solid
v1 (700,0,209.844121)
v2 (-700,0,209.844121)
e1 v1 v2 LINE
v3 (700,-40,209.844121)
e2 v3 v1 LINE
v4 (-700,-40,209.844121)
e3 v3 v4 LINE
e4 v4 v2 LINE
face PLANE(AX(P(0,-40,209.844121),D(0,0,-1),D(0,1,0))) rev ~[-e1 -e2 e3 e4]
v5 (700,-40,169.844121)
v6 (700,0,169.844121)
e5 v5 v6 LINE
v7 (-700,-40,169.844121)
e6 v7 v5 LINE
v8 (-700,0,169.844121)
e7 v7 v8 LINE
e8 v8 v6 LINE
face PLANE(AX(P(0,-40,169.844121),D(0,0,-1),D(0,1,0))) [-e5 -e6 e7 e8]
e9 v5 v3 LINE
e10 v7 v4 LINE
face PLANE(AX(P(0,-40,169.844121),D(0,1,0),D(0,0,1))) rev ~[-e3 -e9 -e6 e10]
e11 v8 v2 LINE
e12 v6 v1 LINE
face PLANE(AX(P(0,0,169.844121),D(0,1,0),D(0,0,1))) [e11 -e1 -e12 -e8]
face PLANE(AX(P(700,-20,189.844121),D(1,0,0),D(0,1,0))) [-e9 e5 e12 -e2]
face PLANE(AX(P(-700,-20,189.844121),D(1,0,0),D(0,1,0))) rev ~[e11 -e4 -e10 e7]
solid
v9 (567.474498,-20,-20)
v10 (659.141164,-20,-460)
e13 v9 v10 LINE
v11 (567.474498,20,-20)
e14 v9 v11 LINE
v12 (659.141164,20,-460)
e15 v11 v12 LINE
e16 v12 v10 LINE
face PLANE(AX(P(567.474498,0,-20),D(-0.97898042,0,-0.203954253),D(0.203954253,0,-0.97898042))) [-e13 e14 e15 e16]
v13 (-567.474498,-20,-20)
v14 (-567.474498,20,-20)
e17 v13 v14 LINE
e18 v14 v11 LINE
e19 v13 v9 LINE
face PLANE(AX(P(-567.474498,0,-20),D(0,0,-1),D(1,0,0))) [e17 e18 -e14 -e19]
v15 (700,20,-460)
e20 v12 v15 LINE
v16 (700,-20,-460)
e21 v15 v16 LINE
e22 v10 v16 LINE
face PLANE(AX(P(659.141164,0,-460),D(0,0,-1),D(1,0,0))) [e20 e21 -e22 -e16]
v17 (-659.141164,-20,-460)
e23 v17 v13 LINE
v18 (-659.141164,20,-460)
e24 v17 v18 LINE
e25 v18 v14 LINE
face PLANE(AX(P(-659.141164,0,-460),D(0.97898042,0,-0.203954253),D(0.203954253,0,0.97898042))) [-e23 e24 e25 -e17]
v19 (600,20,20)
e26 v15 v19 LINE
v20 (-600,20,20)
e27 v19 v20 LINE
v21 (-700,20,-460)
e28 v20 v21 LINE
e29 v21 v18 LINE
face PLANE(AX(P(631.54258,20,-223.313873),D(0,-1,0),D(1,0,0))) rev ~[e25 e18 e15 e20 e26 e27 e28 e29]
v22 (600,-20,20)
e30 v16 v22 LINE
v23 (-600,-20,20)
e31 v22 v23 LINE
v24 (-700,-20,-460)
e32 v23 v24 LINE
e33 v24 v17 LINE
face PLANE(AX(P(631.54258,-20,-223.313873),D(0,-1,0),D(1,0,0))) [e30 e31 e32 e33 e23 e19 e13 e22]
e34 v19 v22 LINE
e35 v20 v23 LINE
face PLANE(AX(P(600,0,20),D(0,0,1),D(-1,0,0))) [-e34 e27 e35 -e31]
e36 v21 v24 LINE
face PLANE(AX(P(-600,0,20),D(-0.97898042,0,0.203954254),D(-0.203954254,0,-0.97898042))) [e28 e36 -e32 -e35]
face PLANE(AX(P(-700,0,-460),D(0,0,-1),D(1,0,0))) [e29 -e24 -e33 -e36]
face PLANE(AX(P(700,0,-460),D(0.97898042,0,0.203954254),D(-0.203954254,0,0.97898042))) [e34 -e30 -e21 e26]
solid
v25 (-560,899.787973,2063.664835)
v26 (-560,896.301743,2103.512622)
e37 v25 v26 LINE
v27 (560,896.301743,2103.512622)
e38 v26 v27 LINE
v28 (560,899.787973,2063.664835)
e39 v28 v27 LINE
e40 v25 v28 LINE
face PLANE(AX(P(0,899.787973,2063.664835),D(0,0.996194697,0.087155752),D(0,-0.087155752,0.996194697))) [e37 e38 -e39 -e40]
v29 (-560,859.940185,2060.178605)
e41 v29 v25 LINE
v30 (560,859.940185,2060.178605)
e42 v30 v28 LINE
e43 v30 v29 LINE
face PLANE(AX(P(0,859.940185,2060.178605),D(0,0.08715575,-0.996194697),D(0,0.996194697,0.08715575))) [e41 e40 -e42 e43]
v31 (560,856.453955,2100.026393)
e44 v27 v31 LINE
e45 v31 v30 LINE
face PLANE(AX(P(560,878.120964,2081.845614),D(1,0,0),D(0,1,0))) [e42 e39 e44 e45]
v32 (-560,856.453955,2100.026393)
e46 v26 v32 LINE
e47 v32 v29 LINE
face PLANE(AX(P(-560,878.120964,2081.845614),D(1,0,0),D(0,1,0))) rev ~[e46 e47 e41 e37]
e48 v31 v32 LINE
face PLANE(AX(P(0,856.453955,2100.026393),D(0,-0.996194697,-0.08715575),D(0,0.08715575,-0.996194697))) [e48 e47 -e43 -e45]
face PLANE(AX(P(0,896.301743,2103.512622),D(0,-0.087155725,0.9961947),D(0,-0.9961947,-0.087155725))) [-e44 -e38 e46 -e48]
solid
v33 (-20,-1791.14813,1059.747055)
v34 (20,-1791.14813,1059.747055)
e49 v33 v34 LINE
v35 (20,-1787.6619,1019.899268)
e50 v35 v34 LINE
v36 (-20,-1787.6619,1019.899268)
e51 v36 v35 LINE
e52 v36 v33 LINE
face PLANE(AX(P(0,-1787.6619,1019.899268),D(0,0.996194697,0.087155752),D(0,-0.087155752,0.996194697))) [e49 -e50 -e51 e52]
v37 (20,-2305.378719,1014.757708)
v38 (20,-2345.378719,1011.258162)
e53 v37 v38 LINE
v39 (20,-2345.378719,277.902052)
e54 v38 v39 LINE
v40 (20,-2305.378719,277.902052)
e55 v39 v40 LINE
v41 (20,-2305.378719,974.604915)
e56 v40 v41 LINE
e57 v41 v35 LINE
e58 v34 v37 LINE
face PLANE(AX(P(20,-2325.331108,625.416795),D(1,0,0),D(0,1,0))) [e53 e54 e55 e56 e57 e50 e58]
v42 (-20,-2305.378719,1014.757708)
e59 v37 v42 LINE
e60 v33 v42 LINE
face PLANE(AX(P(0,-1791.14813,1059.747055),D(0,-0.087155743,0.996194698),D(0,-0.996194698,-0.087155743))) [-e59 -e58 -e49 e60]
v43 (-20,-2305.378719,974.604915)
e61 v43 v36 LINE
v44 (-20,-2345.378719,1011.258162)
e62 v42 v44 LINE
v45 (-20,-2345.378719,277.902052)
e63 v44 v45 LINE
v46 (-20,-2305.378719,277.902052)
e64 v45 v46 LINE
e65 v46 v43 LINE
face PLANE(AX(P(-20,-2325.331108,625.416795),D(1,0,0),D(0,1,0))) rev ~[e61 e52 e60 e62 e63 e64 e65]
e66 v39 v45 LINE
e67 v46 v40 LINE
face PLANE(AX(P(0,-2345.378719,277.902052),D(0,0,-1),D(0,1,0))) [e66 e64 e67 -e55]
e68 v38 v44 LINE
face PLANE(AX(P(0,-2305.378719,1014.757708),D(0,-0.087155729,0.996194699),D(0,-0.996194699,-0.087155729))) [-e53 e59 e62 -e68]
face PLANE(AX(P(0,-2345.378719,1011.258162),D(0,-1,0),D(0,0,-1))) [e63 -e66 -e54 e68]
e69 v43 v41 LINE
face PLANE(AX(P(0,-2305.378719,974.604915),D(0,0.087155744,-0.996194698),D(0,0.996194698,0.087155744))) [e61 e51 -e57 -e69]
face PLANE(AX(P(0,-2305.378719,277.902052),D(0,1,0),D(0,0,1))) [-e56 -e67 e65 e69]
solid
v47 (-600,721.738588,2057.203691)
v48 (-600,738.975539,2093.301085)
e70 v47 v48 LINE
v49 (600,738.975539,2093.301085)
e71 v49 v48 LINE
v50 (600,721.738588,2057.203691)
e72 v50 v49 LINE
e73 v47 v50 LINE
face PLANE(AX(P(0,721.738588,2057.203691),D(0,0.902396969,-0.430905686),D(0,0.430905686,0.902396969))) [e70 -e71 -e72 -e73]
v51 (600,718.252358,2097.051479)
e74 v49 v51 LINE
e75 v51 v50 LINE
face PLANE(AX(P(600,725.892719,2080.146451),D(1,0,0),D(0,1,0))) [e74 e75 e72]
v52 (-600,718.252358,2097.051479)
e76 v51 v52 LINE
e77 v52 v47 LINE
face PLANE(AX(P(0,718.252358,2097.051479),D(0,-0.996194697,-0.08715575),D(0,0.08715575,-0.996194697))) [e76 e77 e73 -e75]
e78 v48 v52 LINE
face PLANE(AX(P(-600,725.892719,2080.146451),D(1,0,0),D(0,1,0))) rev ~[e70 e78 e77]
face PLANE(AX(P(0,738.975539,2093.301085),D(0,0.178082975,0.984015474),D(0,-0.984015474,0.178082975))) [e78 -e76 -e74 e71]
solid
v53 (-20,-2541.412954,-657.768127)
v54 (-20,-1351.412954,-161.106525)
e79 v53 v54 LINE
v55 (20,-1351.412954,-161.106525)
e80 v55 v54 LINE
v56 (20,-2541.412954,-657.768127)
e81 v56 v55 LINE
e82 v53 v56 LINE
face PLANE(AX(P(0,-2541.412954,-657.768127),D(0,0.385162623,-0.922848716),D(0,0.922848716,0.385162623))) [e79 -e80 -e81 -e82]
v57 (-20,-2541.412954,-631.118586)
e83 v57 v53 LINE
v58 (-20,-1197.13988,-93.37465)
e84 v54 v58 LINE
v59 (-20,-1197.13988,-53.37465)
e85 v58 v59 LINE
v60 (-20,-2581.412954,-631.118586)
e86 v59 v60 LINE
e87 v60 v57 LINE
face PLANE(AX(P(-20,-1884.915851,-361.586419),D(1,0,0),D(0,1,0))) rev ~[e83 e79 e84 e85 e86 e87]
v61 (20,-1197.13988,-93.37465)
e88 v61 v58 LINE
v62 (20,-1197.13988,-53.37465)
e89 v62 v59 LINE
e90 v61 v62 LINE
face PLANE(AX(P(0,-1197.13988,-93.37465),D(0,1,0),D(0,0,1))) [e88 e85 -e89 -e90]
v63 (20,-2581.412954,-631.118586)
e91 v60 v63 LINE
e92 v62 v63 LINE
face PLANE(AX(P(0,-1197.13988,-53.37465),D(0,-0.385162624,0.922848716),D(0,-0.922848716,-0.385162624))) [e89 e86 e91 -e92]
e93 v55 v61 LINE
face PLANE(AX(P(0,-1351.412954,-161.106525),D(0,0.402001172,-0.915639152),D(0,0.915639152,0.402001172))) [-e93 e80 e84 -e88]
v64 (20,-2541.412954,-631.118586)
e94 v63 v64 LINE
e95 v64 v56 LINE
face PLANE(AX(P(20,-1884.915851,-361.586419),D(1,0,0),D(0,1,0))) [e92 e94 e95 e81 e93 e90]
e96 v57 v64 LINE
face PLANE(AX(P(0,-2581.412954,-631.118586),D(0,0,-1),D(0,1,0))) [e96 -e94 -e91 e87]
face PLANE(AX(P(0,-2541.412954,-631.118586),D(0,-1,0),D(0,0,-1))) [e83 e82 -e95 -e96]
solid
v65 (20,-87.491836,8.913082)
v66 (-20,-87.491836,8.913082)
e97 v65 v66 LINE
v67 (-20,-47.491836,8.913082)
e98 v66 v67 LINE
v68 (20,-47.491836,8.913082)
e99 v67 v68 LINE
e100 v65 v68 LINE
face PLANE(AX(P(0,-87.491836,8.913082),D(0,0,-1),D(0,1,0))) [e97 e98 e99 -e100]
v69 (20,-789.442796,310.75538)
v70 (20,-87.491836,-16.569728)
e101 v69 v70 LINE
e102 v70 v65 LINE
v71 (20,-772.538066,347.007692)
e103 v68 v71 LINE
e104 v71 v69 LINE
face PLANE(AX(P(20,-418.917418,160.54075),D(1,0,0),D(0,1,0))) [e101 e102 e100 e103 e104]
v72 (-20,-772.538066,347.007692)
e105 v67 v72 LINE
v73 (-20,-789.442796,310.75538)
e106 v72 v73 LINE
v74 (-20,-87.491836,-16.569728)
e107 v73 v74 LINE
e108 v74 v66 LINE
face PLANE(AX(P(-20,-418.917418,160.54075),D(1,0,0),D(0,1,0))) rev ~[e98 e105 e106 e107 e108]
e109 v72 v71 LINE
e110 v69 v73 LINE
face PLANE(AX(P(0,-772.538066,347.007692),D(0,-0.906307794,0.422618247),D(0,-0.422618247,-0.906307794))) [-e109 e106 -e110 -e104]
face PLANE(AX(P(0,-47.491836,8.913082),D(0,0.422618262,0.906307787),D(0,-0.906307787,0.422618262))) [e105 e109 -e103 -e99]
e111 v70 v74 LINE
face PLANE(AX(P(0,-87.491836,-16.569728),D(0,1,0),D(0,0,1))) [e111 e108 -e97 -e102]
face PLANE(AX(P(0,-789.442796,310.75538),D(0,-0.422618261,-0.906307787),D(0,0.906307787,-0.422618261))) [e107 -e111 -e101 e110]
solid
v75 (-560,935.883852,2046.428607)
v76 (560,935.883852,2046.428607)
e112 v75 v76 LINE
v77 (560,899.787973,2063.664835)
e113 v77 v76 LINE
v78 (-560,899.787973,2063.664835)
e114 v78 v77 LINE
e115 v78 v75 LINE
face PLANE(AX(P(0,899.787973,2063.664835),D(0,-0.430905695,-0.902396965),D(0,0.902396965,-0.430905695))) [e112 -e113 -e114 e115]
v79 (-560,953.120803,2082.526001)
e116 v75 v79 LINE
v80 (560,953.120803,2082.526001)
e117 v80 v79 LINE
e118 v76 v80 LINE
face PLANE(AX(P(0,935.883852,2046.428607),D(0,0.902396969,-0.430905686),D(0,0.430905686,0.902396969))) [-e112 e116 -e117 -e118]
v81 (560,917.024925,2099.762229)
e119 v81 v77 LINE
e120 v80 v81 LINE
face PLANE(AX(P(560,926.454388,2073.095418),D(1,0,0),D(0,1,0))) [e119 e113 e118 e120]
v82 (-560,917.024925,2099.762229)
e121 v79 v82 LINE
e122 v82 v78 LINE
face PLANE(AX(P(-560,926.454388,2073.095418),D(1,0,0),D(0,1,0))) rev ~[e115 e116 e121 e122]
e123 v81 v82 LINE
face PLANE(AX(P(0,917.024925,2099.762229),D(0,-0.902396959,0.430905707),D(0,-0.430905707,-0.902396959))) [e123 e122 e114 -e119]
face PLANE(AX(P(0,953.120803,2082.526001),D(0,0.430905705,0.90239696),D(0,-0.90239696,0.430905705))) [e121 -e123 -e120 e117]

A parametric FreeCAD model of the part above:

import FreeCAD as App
import Part
import Sketcher
Q = App.Units.Quantity


def add_polygon(sketch, points):
    """Adds a closed chain of lines whose ends are joined by coincident constraints."""
    first, n = sketch.GeometryCount, len(points)
    for a, b in zip(points, points[1:] + points[:1]):
        sketch.addGeometry(Part.LineSegment(App.Vector(*a, 0), App.Vector(*b, 0)), False)
    for i in range(n):
        sketch.addConstraint(Sketcher.Constraint("Coincident", first + i, 2, first + (i + 1) % n, 1))

doc = App.newDocument("Part")
body = doc.addObject("PartDesign::Body", "Body")

# Sketch on XZ plane
sketch1 = doc.addObject("Sketcher::SketchObject", "Sketch")
body.addObject(sketch1)
sketch1.AttachmentSupport = (doc.XZ_Plane, [""])
sketch1.MapMode = "FlatFace"
add_polygon(sketch1, [(567, -20), (659, -460), (700, -460), (600, 20), (-600, 20), (-700, -460), (-659, -460), (-567, -20)])  # lines 0-7
sketch1.addConstraint([
    Sketcher.Constraint("Horizontal", 1),
    Sketcher.Constraint("Horizontal", 3),
    Sketcher.Constraint("Horizontal", 5),
    Sketcher.Constraint("Horizontal", 7),
    Sketcher.Constraint("Symmetric", 1, 2, 4, 2, -2),
    Sketcher.Constraint("Parallel", 0, 2),
    Sketcher.Constraint("Parallel", 4, 6),
    Sketcher.Constraint("Equal", 1, 5),
    Sketcher.Constraint("Equal", 2, 4),
    Sketcher.Constraint("DistanceX", 3, 2, 3, 1, Q("1200 mm")),
    Sketcher.Constraint("DistanceY", 0, 2, -1, 1, Q("460 mm")),
    Sketcher.Constraint("DistanceX", -1, 1, 1, 2, Q("700 mm")),
    Sketcher.Constraint("DistanceY", -1, 1, 2, 2, Q("20 mm")),
    Sketcher.Constraint("DistanceY", 6, 2, -1, 1, Q("20 mm")),
    Sketcher.Constraint("DistanceX", 6, 2, -1, 1, Q("567.474498 mm")),
])
pad1 = doc.addObject("PartDesign::Pad", "Pad")
body.addObject(pad1)
pad1.Profile = sketch1
pad1.Length = 40
pad1.Midplane = True
body2 = doc.addObject("PartDesign::Body", "Body001")

# Sketch on YZ plane
sketch2 = doc.addObject("Sketcher::SketchObject", "Sketch001")
body2.addObject(sketch2)
sketch2.AttachmentSupport = (doc.getObject("YZ_Plane001"), [""])
sketch2.MapMode = "FlatFace"
add_polygon(sketch2, [(-87, 9), (-47, 9), (-773, 347), (-789, 311), (-87, -17)])  # lines 0-4
sketch2.addConstraint([
    Sketcher.Constraint("Horizontal", 0),
    Sketcher.Constraint("Vertical", 4),
    Sketcher.Constraint("Perpendicular", 1, 2),
    Sketcher.Constraint("Perpendicular", 2, 3),
    Sketcher.Constraint("DistanceX", 0, 1, 0, 2, Q("40 mm")),
    Sketcher.Constraint("Angle", 1, Q("155 deg")),
    Sketcher.Constraint("Distance", 1, Q("800.000001 mm")),
    Sketcher.Constraint("Distance", 2, Q("40 mm")),
    Sketcher.Constraint("DistanceY", -1, 1, 0, 2, Q("8.913082 mm")),
    Sketcher.Constraint("DistanceX", 0, 2, -1, 1, Q("47.491836 mm")),
])
pad2 = doc.addObject("PartDesign::Pad", "Pad001")
body2.addObject(pad2)
pad2.Profile = sketch2
pad2.Length = 40
pad2.Midplane = True
body3 = doc.addObject("PartDesign::Body", "Body002")

# Sketch on YZ plane
sketch3 = doc.addObject("Sketcher::SketchObject", "Sketch002")
body3.addObject(sketch3)
sketch3.AttachmentSupport = (doc.getObject("YZ_Plane002"), [""])
sketch3.MapMode = "FlatFace"
add_polygon(sketch3, [(718, 2097), (722, 2057), (739, 2093)])  # lines 0-2
sketch3.addConstraint([
    Sketcher.Constraint("Angle", 0, Q("-85 deg")),
    Sketcher.Constraint("Distance", 0, Q("40 mm")),
    Sketcher.Constraint("Distance", 1, Q("40.001679 mm")),
    Sketcher.Constraint("DistanceX", -1, 1, 0, 2, Q("721.738588 mm")),
    Sketcher.Constraint("DistanceY", -1, 1, 0, 2, Q("2057.203691 mm")),
    Sketcher.Constraint("DistanceX", -1, 1, 1, 2, Q("738.975539 mm")),
])
pad3 = doc.addObject("PartDesign::Pad", "Pad002")
body3.addObject(pad3)
pad3.Profile = sketch3
pad3.Length = 1200
pad3.Midplane = True
body4 = doc.addObject("PartDesign::Body", "Body003")
body4.AllowCompound = True

# Sketch on YZ plane
sketch4 = doc.addObject("Sketcher::SketchObject", "Sketch003")
body4.addObject(sketch4)
sketch4.AttachmentSupport = (doc.getObject("YZ_Plane003"), [""])
sketch4.MapMode = "FlatFace"
add_polygon(sketch4, [(860, 2060), (900, 2064), (896, 2104), (856, 2100)])  # lines 0-3
add_polygon(sketch4, [(917, 2100), (900, 2064), (936, 2046), (953, 2083)])  # lines 4-7
sketch4.addConstraint([
    Sketcher.Constraint("Coincident", 4, 2, 0, 2),
    Sketcher.Constraint("Perpendicular", 0, 1),
    Sketcher.Constraint("Perpendicular", 1, 2),
    Sketcher.Constraint("Perpendicular", 2, 3),
    Sketcher.Constraint("Perpendicular", 4, 5),
    Sketcher.Constraint("Perpendicular", 5, 6),
    Sketcher.Constraint("Perpendicular", 6, 7),
    Sketcher.Constraint("Equal", 0, 1),
    Sketcher.Constraint("Equal", 3, 5),
    Sketcher.Constraint("Angle", 0, Q("5 deg")),
    Sketcher.Constraint("Distance", 0, Q("40 mm")),
    Sketcher.Constraint("DistanceY", 5, 2, 3, 2, Q("13.749998 mm")),
    Sketcher.Constraint("DistanceY", -1, 1, 6, 2, Q("2082.526001 mm")),
    Sketcher.Constraint("Distance", 4, Q("40.00168 mm")),
    Sketcher.Constraint("DistanceX", -1, 1, 5, 2, Q("935.883852 mm")),
])
pad4 = doc.addObject("PartDesign::Pad", "Pad003")
body4.addObject(pad4)
pad4.Profile = sketch4
pad4.Length = 1120
pad4.Midplane = True
body5 = doc.addObject("PartDesign::Body", "Body004")

# Sketch on YZ plane
sketch5 = doc.addObject("Sketcher::SketchObject", "Sketch004")
body5.addObject(sketch5)
sketch5.AttachmentSupport = (doc.getObject("YZ_Plane004"), [""])
sketch5.MapMode = "FlatFace"
add_polygon(sketch5, [(-2345, 278), (-2305, 278), (-2305, 975), (-1788, 1020), (-1791, 1060), (-2305, 1015), (-2345, 1011)])  # lines 0-6
sketch5.addConstraint([
    Sketcher.Constraint("Horizontal", 0),
    Sketcher.Constraint("Vertical", 1),
    Sketcher.Constraint("Vertical", 6),
    Sketcher.Constraint("Perpendicular", 2, 3),
    Sketcher.Constraint("Perpendicular", 3, 4),
    Sketcher.Constraint("Parallel", 4, 5),
    Sketcher.Constraint("Vertical", 1, 2, 4, 2),
    Sketcher.Constraint("DistanceX", 0, 1, 0, 2, Q("40 mm")),
    Sketcher.Constraint("Angle", 2, Q("5 deg")),
    Sketcher.Constraint("Distance", 3, Q("39.999999 mm")),
    Sketcher.Constraint("DistanceY", 6, 2, 6, 1, Q("733.35611 mm")),
    Sketcher.Constraint("DistanceX", 2, 2, -1, 1, Q("1787.6619 mm")),
    Sketcher.Constraint("DistanceX", 0, 2, -1, 1, Q("2305.378719 mm")),
    Sketcher.Constraint("DistanceY", -1, 1, 2, 2, Q("1019.899268 mm")),
])
pad5 = doc.addObject("PartDesign::Pad", "Pad004")
body5.addObject(pad5)
pad5.Profile = sketch5
pad5.Length = 40
pad5.Midplane = True
body6 = doc.addObject("PartDesign::Body", "Body005")

# Sketch on YZ plane
sketch6 = doc.addObject("Sketcher::SketchObject", "Sketch005")
body6.addObject(sketch6)
sketch6.AttachmentSupport = (doc.getObject("YZ_Plane005"), [""])
sketch6.MapMode = "FlatFace"
add_polygon(sketch6, [(-40, 210), (-40, 170), (0, 170), (0, 210)])  # lines 0-3
sketch6.addConstraint([
    Sketcher.Constraint("Vertical", 0),
    Sketcher.Constraint("Horizontal", 1),
    Sketcher.Constraint("Vertical", 2),
    Sketcher.Constraint("Horizontal", 3),
    Sketcher.Constraint("PointOnObject", 1, 2, -2),
    Sketcher.Constraint("Equal", 3, 0),
    Sketcher.Constraint("DistanceX", 1, 1, 1, 2, Q("40 mm")),
    Sketcher.Constraint("DistanceY", -1, 1, 0, 2, Q("169.844121 mm")),
])
pad6 = doc.addObject("PartDesign::Pad", "Pad005")
body6.addObject(pad6)
pad6.Profile = sketch6
pad6.Length = 1400
pad6.Midplane = True
body7 = doc.addObject("PartDesign::Body", "Body006")

# Sketch on YZ plane
sketch7 = doc.addObject("Sketcher::SketchObject", "Sketch006")
body7.addObject(sketch7)
sketch7.AttachmentSupport = (doc.getObject("YZ_Plane006"), [""])
sketch7.MapMode = "FlatFace"
add_polygon(sketch7, [(-1197, -53), (-2581, -631), (-2541, -631), (-2541, -658), (-1351, -161), (-1197, -93)])  # lines 0-5
sketch7.addConstraint([
    Sketcher.Constraint("Horizontal", 1),
    Sketcher.Constraint("Vertical", 2),
    Sketcher.Constraint("Vertical", 5),
    Sketcher.Constraint("Parallel", 0, 3),
    Sketcher.Constraint("Equal", 1, 5),
    Sketcher.Constraint("DistanceX", 1, 1, 1, 2, Q("40 mm")),
    Sketcher.Constraint("Distance", 0, Q("1500 mm")),
    Sketcher.Constraint("DistanceX", 1, 2, 3, 2, Q("1190 mm")),
    Sketcher.Constraint("DistanceY", 2, 2, 2, 1, Q("26.649541 mm")),
    Sketcher.Constraint("DistanceY", 2, 2, 3, 2, Q("496.661602 mm")),
    Sketcher.Constraint("DistanceX", 4, 2, -1, 1, Q("1197.13988 mm")),
    Sketcher.Constraint("DistanceY", 4, 2, -1, 1, Q("93.37465 mm")),
])
pad7 = doc.addObject("PartDesign::Pad", "Pad006")
body7.addObject(pad7)
pad7.Profile = sketch7
pad7.Length = 40
pad7.Midplane = True

doc.recompute()
